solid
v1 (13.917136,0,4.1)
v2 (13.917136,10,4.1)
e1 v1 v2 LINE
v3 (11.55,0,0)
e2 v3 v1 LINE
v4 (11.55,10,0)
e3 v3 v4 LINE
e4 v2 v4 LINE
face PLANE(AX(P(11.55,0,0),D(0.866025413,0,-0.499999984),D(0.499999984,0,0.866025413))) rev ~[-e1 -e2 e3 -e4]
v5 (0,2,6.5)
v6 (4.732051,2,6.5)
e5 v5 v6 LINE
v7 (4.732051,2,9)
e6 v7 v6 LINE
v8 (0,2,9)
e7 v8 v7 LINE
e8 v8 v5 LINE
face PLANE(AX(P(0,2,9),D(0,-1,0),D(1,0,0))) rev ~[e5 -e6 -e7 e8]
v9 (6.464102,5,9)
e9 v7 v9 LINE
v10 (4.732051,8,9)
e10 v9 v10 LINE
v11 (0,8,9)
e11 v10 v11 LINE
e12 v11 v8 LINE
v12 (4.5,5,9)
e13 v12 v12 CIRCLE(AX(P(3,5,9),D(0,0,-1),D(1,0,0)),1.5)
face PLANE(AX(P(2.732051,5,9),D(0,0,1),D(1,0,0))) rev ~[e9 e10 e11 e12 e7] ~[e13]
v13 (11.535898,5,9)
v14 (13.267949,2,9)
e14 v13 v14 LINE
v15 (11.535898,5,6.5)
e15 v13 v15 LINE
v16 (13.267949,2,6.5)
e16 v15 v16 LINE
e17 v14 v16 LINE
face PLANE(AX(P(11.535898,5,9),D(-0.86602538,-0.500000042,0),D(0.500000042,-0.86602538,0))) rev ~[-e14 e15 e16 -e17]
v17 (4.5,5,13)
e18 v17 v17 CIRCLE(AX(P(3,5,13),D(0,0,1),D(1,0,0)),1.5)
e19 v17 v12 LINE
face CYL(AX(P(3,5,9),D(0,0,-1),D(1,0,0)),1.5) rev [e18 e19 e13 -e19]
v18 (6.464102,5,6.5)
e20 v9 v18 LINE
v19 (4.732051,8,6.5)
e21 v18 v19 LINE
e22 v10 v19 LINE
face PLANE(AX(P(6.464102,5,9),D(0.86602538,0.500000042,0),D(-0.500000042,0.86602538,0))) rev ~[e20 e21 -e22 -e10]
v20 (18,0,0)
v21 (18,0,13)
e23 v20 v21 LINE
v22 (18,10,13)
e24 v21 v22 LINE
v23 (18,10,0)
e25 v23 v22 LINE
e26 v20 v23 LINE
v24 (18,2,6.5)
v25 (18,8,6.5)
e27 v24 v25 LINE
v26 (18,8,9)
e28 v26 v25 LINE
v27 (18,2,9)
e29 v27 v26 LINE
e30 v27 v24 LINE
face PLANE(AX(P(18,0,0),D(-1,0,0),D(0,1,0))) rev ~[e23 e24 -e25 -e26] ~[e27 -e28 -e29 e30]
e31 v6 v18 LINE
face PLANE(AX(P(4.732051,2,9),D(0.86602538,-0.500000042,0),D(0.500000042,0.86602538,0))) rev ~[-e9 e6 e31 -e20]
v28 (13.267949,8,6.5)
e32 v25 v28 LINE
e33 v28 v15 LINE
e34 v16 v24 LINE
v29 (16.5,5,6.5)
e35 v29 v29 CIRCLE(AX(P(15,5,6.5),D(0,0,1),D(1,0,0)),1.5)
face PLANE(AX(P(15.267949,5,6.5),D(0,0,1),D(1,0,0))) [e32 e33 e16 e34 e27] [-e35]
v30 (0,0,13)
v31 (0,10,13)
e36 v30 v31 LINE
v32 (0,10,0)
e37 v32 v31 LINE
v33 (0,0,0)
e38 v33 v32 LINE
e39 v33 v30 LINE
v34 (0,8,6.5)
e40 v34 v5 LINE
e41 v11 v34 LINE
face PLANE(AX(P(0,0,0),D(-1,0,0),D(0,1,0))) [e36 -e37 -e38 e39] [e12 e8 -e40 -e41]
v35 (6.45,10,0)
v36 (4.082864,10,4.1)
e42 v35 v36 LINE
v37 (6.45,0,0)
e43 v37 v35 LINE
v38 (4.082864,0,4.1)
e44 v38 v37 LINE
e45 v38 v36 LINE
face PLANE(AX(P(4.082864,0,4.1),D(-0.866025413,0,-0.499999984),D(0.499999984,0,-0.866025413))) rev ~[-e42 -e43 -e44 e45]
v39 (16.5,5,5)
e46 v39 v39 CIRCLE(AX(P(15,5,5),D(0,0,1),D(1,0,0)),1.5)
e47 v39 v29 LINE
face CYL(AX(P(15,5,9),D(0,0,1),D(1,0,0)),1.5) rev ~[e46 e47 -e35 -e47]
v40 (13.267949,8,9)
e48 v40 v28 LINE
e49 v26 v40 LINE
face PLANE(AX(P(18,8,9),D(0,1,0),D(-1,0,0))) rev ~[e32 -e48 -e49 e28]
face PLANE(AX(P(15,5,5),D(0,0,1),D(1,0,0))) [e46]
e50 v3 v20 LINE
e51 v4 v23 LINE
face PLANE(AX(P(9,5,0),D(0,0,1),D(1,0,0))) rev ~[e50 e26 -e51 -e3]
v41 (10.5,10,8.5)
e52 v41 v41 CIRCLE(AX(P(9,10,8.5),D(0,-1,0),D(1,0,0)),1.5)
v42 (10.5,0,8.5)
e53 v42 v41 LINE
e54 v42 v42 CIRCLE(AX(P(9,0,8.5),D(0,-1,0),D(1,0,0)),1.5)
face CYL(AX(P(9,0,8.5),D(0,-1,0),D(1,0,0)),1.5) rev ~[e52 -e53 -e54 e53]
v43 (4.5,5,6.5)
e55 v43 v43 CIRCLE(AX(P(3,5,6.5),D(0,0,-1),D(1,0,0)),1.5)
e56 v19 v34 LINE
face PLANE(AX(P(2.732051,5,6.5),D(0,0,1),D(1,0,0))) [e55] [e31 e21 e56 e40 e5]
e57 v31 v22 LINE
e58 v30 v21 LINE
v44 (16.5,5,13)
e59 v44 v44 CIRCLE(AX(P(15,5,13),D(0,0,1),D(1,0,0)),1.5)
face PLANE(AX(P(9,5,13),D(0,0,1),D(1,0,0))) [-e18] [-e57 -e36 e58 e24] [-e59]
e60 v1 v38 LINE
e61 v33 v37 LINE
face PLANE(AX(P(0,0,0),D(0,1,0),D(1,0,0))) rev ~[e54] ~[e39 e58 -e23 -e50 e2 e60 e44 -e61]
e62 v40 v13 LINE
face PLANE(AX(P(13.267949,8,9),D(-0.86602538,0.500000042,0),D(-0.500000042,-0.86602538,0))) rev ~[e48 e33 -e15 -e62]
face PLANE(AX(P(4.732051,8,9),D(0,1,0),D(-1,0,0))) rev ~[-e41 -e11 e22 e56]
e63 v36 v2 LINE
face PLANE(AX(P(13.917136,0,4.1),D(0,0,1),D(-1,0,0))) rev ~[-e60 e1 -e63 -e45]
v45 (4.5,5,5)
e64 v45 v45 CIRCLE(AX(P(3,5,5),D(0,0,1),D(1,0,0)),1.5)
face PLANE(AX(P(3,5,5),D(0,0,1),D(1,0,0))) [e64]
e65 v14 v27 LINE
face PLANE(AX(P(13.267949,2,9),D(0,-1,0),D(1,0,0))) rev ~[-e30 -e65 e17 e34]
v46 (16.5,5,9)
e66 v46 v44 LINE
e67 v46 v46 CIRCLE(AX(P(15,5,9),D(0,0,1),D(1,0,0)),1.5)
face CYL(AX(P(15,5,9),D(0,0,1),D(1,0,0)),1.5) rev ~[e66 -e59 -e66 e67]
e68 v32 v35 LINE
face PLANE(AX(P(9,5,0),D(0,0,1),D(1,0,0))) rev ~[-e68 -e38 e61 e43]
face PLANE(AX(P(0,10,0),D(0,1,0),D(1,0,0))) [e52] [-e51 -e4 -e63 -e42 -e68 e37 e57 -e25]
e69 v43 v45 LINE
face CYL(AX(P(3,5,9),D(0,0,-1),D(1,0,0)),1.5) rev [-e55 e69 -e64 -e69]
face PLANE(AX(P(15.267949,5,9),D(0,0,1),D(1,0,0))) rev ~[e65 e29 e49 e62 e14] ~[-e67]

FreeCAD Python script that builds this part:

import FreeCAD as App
import Part
import Sketcher
Q = App.Units.Quantity

doc = App.newDocument("Part")
body = doc.addObject("PartDesign::Body", "Body")

sketch1 = body.newObject("Sketcher::SketchObject", "Sketch")
sketch1.AttachmentSupport = (doc.getObject("XY_Plane"), [""])
sketch1.MapMode = "FlatFace"
sketch1.addGeometry(Part.LineSegment(App.Vector(0, 10, 0), App.Vector(0, 0, 0)), False)
sketch1.addGeometry(Part.LineSegment(App.Vector(0, 0, 0), App.Vector(18, 0, 0)), False)
sketch1.addGeometry(Part.LineSegment(App.Vector(18, 0, 0), App.Vector(18, 10, 0)), False)
sketch1.addGeometry(Part.LineSegment(App.Vector(18, 10, 0), App.Vector(0, 10, 0)), False)
sketch1.addConstraint(Sketcher.Constraint("Coincident", 0, 2, 1, 1))
sketch1.addConstraint(Sketcher.Constraint("Coincident", 1, 2, 2, 1))
sketch1.addConstraint(Sketcher.Constraint("Coincident", 2, 2, 3, 1))
sketch1.addConstraint(Sketcher.Constraint("Coincident", 3, 2, 0, 1))
sketch1.addConstraint(Sketcher.Constraint("Vertical", 0))
sketch1.addConstraint(Sketcher.Constraint("Horizontal", 1))
sketch1.addConstraint(Sketcher.Constraint("Vertical", 2))
sketch1.addConstraint(Sketcher.Constraint("Horizontal", 3))
sketch1.addConstraint(Sketcher.Constraint("Coincident", 0, 2, -1, 1))
sketch1.addConstraint(Sketcher.Constraint("DistanceX", 1, 1, 1, 2, Q("18 mm")))
sketch1.addConstraint(Sketcher.Constraint("DistanceY", 0, 2, 0, 1, Q("10 mm")))
pad1 = body.newObject("PartDesign::Pad", "Pad")
pad1.Profile = sketch1
pad1.Length = 13

sketch2 = body.newObject("Sketcher::SketchObject", "Sketch001")
sketch2.AttachmentSupport = (doc.getObject("XY_Plane"), [""])
sketch2.MapMode = "FlatFace"
sketch2.AttachmentOffset = App.Placement(App.Vector(0, 0, 9), App.Rotation())
sketch2.addGeometry(Part.Circle(App.Vector(3, 5, 0), App.Vector(0, 0, 1), 1.5), False)
sketch2.addGeometry(Part.Circle(App.Vector(15, 5, 0), App.Vector(0, 0, 1), 1.5), False)
sketch2.addConstraint(Sketcher.Constraint("Equal", 0, 1))
sketch2.addConstraint(Sketcher.Constraint("Horizontal", 0, 3, 1, 3))
sketch2.addConstraint(Sketcher.Constraint("Diameter", 0, Q("3 mm")))
sketch2.addConstraint(Sketcher.Constraint("DistanceX", -1, 1, 0, 3, Q("3 mm")))
sketch2.addConstraint(Sketcher.Constraint("DistanceY", -1, 1, 0, 3, Q("5 mm")))
sketch2.addConstraint(Sketcher.Constraint("DistanceX", -1, 1, 1, 3, Q("15 mm")))
pocket1 = body.newObject("PartDesign::Pocket", "Pocket")
pocket1.Profile = sketch2
pocket1.Length = 8
pocket1.Midplane = True

sketch3 = body.newObject("Sketcher::SketchObject", "Sketch002")
sketch3.AttachmentSupport = (doc.getObject("XY_Plane"), [""])
sketch3.MapMode = "FlatFace"
sketch3.AttachmentOffset = App.Placement(App.Vector(0, 0, 9), App.Rotation())
sketch3.addGeometry(Part.LineSegment(App.Vector(4.7, 2, 0), App.Vector(6.5, 5, 0)), False)
sketch3.addGeometry(Part.LineSegment(App.Vector(6.5, 5, 0), App.Vector(4.7, 8, 0)), False)
sketch3.addGeometry(Part.LineSegment(App.Vector(4.7, 8, 0), App.Vector(0, 8, 0)), False)
sketch3.addGeometry(Part.LineSegment(App.Vector(0, 8, 0), App.Vector(0, 2, 0)), False)
sketch3.addGeometry(Part.LineSegment(App.Vector(0, 2, 0), App.Vector(4.7, 2, 0)), False)
sketch3.addGeometry(Part.LineSegment(App.Vector(13.3, 8, 0), App.Vector(11.5, 5, 0)), False)
sketch3.addGeometry(Part.LineSegment(App.Vector(11.5, 5, 0), App.Vector(13.3, 2, 0)), False)
sketch3.addGeometry(Part.LineSegment(App.Vector(13.3, 2, 0), App.Vector(18, 2, 0)), False)
sketch3.addGeometry(Part.LineSegment(App.Vector(18, 2, 0), App.Vector(18, 8, 0)), False)
sketch3.addGeometry(Part.LineSegment(App.Vector(18, 8, 0), App.Vector(13.3, 8, 0)), False)
sketch3.addConstraint(Sketcher.Constraint("Coincident", 0, 2, 1, 1))
sketch3.addConstraint(Sketcher.Constraint("Coincident", 1, 2, 2, 1))
sketch3.addConstraint(Sketcher.Constraint("Coincident", 2, 2, 3, 1))
sketch3.addConstraint(Sketcher.Constraint("Coincident", 3, 2, 4, 1))
sketch3.addConstraint(Sketcher.Constraint("Coincident", 4, 2, 0, 1))
sketch3.addConstraint(Sketcher.Constraint("Coincident", 5, 2, 6, 1))
sketch3.addConstraint(Sketcher.Constraint("Coincident", 6, 2, 7, 1))
sketch3.addConstraint(Sketcher.Constraint("Coincident", 7, 2, 8, 1))
sketch3.addConstraint(Sketcher.Constraint("Coincident", 8, 2, 9, 1))
sketch3.addConstraint(Sketcher.Constraint("Coincident", 9, 2, 5, 1))
sketch3.addConstraint(Sketcher.Constraint("Horizontal", 2))
sketch3.addConstraint(Sketcher.Constraint("Vertical", 3))
sketch3.addConstraint(Sketcher.Constraint("Horizontal", 4))
sketch3.addConstraint(Sketcher.Constraint("Horizontal", 7))
sketch3.addConstraint(Sketcher.Constraint("Vertical", 8))
sketch3.addConstraint(Sketcher.Constraint("Horizontal", 9))
sketch3.addConstraint(Sketcher.Constraint("PointOnObject", 2, 2, -2))
sketch3.addConstraint(Sketcher.Constraint("Parallel", 0, 5))
sketch3.addConstraint(Sketcher.Constraint("Parallel", 1, 6))
sketch3.addConstraint(Sketcher.Constraint("Horizontal", 0, 2, 5, 2))
sketch3.addConstraint(Sketcher.Constraint("Horizontal", 4, 2, 6, 2))
sketch3.addConstraint(Sketcher.Constraint("Horizontal", 2, 2, 8, 2))
sketch3.addConstraint(Sketcher.Constraint("Vertical", 1, 2, 4, 2))
sketch3.addConstraint(Sketcher.Constraint("Vertical", 6, 2, 9, 2))
sketch3.addConstraint(Sketcher.Constraint("Equal", 4, 7))
sketch3.addConstraint(Sketcher.Constraint("DistanceY", 3, 2, 3, 1, Q("6 mm")))
sketch3.addConstraint(Sketcher.Constraint("Angle", 0, Q("59.999997 deg")))
sketch3.addConstraint(Sketcher.Constraint("DistanceY", -1, 1, 0, 2, Q("5 mm")))
sketch3.addConstraint(Sketcher.Constraint("DistanceX", -1, 1, 7, 2, Q("18 mm")))
sketch3.addConstraint(Sketcher.Constraint("DistanceX", 2, 2, 2, 1, Q("4.732051 mm")))
pocket2 = body.newObject("PartDesign::Pocket", "Pocket001")
pocket2.Profile = sketch3
pocket2.Length = 2.5

sketch4 = body.newObject("Sketcher::SketchObject", "Sketch003")
sketch4.AttachmentSupport = (doc.getObject("XZ_Plane"), [""])
sketch4.MapMode = "FlatFace"
sketch4.addGeometry(Part.LineSegment(App.Vector(6.5, 0, 0), App.Vector(11.6, 0, 0)), False)
sketch4.addGeometry(Part.LineSegment(App.Vector(11.6, 0, 0), App.Vector(13.9, 4.1, 0)), False)
sketch4.addGeometry(Part.LineSegment(App.Vector(13.9, 4.1, 0), App.Vector(4.1, 4.1, 0)), False)
sketch4.addGeometry(Part.LineSegment(App.Vector(4.1, 4.1, 0), App.Vector(6.5, 0, 0)), False)
sketch4.addConstraint(Sketcher.Constraint("Coincident", 0, 2, 1, 1))
sketch4.addConstraint(Sketcher.Constraint("Coincident", 1, 2, 2, 1))
sketch4.addConstraint(Sketcher.Constraint("Coincident", 2, 2, 3, 1))
sketch4.addConstraint(Sketcher.Constraint("Coincident", 3, 2, 0, 1))
sketch4.addConstraint(Sketcher.Constraint("Horizontal", 0))
sketch4.addConstraint(Sketcher.Constraint("Horizontal", 2))
sketch4.addConstraint(Sketcher.Constraint("PointOnObject", 0, 2, -1))
sketch4.addConstraint(Sketcher.Constraint("Equal", 1, 3))
sketch4.addConstraint(Sketcher.Constraint("Angle", 1, Q("60.000001 deg")))
sketch4.addConstraint(Sketcher.Constraint("DistanceX", 0, 1, 0, 2, Q("5.1 mm")))
sketch4.addConstraint(Sketcher.Constraint("DistanceY", -1, 1, 1, 2, Q("4.1 mm")))
sketch4.addConstraint(Sketcher.Constraint("DistanceX", -1, 1, 0, 2, Q("11.55 mm")))
pocket3 = body.newObject("PartDesign::Pocket", "Pocket002")
pocket3.Profile = sketch4
pocket3.Type = "ThroughAll"

sketch5 = body.newObject("Sketcher::SketchObject", "Sketch004")
sketch5.AttachmentSupport = (doc.getObject("XZ_Plane"), [""])
sketch5.MapMode = "FlatFace"
sketch5.addGeometry(Part.Circle(App.Vector(9, 8.5, 0), App.Vector(0, 0, 1), 1.5), False)
sketch5.addConstraint(Sketcher.Constraint("Diameter", 0, Q("3 mm")))
sketch5.addConstraint(Sketcher.Constraint("DistanceX", -1, 1, 0, 3, Q("9 mm")))
sketch5.addConstraint(Sketcher.Constraint("DistanceY", -1, 1, 0, 3, Q("8.5 mm")))
pocket4 = body.newObject("PartDesign::Pocket", "Pocket003")
pocket4.Profile = sketch5
pocket4.Type = "ThroughAll"

doc.recompute()
